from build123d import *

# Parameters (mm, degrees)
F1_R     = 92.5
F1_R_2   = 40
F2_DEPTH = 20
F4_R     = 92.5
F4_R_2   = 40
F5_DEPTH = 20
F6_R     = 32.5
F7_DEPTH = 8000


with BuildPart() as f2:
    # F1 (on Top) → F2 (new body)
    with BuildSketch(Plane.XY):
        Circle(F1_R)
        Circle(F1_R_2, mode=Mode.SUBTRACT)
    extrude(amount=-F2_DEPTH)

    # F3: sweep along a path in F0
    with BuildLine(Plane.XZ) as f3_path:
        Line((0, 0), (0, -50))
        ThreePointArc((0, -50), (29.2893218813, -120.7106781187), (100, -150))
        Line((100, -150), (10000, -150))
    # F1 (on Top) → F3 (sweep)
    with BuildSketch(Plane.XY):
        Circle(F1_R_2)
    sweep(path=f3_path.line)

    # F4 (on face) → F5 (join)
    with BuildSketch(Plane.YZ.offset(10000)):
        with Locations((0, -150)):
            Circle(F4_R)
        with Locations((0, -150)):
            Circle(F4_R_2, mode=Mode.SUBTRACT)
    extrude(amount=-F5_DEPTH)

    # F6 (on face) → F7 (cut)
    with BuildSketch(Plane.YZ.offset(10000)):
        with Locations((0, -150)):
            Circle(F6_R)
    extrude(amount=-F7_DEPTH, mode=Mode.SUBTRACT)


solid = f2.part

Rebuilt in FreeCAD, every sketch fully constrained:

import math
import FreeCAD as App
import Part
import Sketcher
from FreeCAD import Vector

doc = App.newDocument("Part")
body = doc.addObject("PartDesign::Body", "Body")

# Sketch on XY plane
sketch1 = doc.addObject("Sketcher::SketchObject", "Sketch")
body.addObject(sketch1)
sketch1.AttachmentSupport = (doc.XY_Plane, [""])
sketch1.MapMode = "FlatFace"
sketch1.addGeometry([
    Part.Circle(Vector(0, 0, 0), Vector(0, 0, 1), 92),
    Part.Circle(Vector(0, 0, 0), Vector(0, 0, 1), 40),
], False)
sketch1.addConstraint([
    Sketcher.Constraint("Coincident", 0, 3, -1, 1),
    Sketcher.Constraint("Coincident", 1, 3, -1, 1),
    Sketcher.Constraint("Diameter", 0, 185.0),
    Sketcher.Constraint("Diameter", 1, 80.0),
])
pad1 = doc.addObject("PartDesign::Pad", "Pad")
body.addObject(pad1)
pad1.Profile = sketch1
pad1.Length = 20
pad1.Reversed = True

# Sketch on XY plane
sketch2 = doc.addObject("Sketcher::SketchObject", "Sketch001")
body.addObject(sketch2)
sketch2.AttachmentSupport = (doc.XY_Plane, [""])
sketch2.MapMode = "FlatFace"
sketch2.addGeometry(Part.Circle(Vector(0, 0, 0), Vector(0, 0, 1), 40), False)
sketch2.addConstraint([
    Sketcher.Constraint("Coincident", 0, 3, -1, 1),
    Sketcher.Constraint("Diameter", 0, 80.0),
])

# Sketch on XZ plane
sketch3 = doc.addObject("Sketcher::SketchObject", "Sketch002")
body.addObject(sketch3)
sketch3.AttachmentSupport = (doc.XZ_Plane, [""])
sketch3.MapMode = "FlatFace"
sketch3.addGeometry([
    Part.LineSegment(Vector(0, 0, 0), Vector(0, -50, 0)),
    Part.ArcOfCircle(Part.Circle(Vector(100, -50, 0), Vector(0, 0, 1), 100), math.radians(180), math.radians(270)),
    Part.LineSegment(Vector(100, -150, 0), Vector(10000, -150, 0)),
], False)
sketch3.addConstraint([
    Sketcher.Constraint("Tangent", 0, 2, 1, 1),
    Sketcher.Constraint("Tangent", 1, 2, 2, 1),
    Sketcher.Constraint("Vertical", 0),
    Sketcher.Constraint("Horizontal", 2),
    Sketcher.Constraint("Coincident", 0, 1, -1, 1),
    Sketcher.Constraint("Radius", 1, 100.0),
    Sketcher.Constraint("DistanceX", 2, 1, 2, 2, 9900.0),
    Sketcher.Constraint("DistanceY", 0, 2, 0, 1, 50.0),
])
doc.recompute()

additivepipe = doc.addObject("PartDesign::AdditivePipe", "AdditivePipe")
body.addObject(additivepipe)
additivepipe.Profile = sketch2
additivepipe.Spine = (sketch3, ["Edge1", "Edge2", "Edge3"])

# Sketch on YZ plane
sketch4 = doc.addObject("Sketcher::SketchObject", "Sketch003")
body.addObject(sketch4)
sketch4.AttachmentSupport = (doc.YZ_Plane, [""])
sketch4.MapMode = "FlatFace"
sketch4.AttachmentOffset = App.Placement(Vector(0, 0, 10000), App.Rotation())
sketch4.addGeometry([
    Part.Circle(Vector(0, -150, 0), Vector(0, 0, 1), 92),
    Part.Circle(Vector(0, -150, 0), Vector(0, 0, 1), 40),
], False)
sketch4.addConstraint([
    Sketcher.Constraint("Coincident", 1, 3, 0, 3),
    Sketcher.Constraint("PointOnObject", 0, 3, -2),
    Sketcher.Constraint("Diameter", 0, 185.0),
    Sketcher.Constraint("Diameter", 1, 80.0),
    Sketcher.Constraint("DistanceY", 0, 3, -1, 1, 150.0),
])
pad2 = doc.addObject("PartDesign::Pad", "Pad001")
body.addObject(pad2)
pad2.Profile = sketch4
pad2.Length = 20
pad2.Reversed = True

# Sketch on YZ plane
sketch5 = doc.addObject("Sketcher::SketchObject", "Sketch004")
body.addObject(sketch5)
sketch5.AttachmentSupport = (doc.YZ_Plane, [""])
sketch5.MapMode = "FlatFace"
sketch5.AttachmentOffset = App.Placement(Vector(0, 0, 10000), App.Rotation())
sketch5.addGeometry(Part.Circle(Vector(0, -150, 0), Vector(0, 0, 1), 32), False)
sketch5.addConstraint([
    Sketcher.Constraint("PointOnObject", 0, 3, -2),
    Sketcher.Constraint("Diameter", 0, 65.0),
    Sketcher.Constraint("DistanceY", 0, 3, -1, 1, 150.0),
])
pocket1 = doc.addObject("PartDesign::Pocket", "Pocket")
body.addObject(pocket1)
pocket1.Profile = sketch5
pocket1.Length = 8000

doc.recompute()
